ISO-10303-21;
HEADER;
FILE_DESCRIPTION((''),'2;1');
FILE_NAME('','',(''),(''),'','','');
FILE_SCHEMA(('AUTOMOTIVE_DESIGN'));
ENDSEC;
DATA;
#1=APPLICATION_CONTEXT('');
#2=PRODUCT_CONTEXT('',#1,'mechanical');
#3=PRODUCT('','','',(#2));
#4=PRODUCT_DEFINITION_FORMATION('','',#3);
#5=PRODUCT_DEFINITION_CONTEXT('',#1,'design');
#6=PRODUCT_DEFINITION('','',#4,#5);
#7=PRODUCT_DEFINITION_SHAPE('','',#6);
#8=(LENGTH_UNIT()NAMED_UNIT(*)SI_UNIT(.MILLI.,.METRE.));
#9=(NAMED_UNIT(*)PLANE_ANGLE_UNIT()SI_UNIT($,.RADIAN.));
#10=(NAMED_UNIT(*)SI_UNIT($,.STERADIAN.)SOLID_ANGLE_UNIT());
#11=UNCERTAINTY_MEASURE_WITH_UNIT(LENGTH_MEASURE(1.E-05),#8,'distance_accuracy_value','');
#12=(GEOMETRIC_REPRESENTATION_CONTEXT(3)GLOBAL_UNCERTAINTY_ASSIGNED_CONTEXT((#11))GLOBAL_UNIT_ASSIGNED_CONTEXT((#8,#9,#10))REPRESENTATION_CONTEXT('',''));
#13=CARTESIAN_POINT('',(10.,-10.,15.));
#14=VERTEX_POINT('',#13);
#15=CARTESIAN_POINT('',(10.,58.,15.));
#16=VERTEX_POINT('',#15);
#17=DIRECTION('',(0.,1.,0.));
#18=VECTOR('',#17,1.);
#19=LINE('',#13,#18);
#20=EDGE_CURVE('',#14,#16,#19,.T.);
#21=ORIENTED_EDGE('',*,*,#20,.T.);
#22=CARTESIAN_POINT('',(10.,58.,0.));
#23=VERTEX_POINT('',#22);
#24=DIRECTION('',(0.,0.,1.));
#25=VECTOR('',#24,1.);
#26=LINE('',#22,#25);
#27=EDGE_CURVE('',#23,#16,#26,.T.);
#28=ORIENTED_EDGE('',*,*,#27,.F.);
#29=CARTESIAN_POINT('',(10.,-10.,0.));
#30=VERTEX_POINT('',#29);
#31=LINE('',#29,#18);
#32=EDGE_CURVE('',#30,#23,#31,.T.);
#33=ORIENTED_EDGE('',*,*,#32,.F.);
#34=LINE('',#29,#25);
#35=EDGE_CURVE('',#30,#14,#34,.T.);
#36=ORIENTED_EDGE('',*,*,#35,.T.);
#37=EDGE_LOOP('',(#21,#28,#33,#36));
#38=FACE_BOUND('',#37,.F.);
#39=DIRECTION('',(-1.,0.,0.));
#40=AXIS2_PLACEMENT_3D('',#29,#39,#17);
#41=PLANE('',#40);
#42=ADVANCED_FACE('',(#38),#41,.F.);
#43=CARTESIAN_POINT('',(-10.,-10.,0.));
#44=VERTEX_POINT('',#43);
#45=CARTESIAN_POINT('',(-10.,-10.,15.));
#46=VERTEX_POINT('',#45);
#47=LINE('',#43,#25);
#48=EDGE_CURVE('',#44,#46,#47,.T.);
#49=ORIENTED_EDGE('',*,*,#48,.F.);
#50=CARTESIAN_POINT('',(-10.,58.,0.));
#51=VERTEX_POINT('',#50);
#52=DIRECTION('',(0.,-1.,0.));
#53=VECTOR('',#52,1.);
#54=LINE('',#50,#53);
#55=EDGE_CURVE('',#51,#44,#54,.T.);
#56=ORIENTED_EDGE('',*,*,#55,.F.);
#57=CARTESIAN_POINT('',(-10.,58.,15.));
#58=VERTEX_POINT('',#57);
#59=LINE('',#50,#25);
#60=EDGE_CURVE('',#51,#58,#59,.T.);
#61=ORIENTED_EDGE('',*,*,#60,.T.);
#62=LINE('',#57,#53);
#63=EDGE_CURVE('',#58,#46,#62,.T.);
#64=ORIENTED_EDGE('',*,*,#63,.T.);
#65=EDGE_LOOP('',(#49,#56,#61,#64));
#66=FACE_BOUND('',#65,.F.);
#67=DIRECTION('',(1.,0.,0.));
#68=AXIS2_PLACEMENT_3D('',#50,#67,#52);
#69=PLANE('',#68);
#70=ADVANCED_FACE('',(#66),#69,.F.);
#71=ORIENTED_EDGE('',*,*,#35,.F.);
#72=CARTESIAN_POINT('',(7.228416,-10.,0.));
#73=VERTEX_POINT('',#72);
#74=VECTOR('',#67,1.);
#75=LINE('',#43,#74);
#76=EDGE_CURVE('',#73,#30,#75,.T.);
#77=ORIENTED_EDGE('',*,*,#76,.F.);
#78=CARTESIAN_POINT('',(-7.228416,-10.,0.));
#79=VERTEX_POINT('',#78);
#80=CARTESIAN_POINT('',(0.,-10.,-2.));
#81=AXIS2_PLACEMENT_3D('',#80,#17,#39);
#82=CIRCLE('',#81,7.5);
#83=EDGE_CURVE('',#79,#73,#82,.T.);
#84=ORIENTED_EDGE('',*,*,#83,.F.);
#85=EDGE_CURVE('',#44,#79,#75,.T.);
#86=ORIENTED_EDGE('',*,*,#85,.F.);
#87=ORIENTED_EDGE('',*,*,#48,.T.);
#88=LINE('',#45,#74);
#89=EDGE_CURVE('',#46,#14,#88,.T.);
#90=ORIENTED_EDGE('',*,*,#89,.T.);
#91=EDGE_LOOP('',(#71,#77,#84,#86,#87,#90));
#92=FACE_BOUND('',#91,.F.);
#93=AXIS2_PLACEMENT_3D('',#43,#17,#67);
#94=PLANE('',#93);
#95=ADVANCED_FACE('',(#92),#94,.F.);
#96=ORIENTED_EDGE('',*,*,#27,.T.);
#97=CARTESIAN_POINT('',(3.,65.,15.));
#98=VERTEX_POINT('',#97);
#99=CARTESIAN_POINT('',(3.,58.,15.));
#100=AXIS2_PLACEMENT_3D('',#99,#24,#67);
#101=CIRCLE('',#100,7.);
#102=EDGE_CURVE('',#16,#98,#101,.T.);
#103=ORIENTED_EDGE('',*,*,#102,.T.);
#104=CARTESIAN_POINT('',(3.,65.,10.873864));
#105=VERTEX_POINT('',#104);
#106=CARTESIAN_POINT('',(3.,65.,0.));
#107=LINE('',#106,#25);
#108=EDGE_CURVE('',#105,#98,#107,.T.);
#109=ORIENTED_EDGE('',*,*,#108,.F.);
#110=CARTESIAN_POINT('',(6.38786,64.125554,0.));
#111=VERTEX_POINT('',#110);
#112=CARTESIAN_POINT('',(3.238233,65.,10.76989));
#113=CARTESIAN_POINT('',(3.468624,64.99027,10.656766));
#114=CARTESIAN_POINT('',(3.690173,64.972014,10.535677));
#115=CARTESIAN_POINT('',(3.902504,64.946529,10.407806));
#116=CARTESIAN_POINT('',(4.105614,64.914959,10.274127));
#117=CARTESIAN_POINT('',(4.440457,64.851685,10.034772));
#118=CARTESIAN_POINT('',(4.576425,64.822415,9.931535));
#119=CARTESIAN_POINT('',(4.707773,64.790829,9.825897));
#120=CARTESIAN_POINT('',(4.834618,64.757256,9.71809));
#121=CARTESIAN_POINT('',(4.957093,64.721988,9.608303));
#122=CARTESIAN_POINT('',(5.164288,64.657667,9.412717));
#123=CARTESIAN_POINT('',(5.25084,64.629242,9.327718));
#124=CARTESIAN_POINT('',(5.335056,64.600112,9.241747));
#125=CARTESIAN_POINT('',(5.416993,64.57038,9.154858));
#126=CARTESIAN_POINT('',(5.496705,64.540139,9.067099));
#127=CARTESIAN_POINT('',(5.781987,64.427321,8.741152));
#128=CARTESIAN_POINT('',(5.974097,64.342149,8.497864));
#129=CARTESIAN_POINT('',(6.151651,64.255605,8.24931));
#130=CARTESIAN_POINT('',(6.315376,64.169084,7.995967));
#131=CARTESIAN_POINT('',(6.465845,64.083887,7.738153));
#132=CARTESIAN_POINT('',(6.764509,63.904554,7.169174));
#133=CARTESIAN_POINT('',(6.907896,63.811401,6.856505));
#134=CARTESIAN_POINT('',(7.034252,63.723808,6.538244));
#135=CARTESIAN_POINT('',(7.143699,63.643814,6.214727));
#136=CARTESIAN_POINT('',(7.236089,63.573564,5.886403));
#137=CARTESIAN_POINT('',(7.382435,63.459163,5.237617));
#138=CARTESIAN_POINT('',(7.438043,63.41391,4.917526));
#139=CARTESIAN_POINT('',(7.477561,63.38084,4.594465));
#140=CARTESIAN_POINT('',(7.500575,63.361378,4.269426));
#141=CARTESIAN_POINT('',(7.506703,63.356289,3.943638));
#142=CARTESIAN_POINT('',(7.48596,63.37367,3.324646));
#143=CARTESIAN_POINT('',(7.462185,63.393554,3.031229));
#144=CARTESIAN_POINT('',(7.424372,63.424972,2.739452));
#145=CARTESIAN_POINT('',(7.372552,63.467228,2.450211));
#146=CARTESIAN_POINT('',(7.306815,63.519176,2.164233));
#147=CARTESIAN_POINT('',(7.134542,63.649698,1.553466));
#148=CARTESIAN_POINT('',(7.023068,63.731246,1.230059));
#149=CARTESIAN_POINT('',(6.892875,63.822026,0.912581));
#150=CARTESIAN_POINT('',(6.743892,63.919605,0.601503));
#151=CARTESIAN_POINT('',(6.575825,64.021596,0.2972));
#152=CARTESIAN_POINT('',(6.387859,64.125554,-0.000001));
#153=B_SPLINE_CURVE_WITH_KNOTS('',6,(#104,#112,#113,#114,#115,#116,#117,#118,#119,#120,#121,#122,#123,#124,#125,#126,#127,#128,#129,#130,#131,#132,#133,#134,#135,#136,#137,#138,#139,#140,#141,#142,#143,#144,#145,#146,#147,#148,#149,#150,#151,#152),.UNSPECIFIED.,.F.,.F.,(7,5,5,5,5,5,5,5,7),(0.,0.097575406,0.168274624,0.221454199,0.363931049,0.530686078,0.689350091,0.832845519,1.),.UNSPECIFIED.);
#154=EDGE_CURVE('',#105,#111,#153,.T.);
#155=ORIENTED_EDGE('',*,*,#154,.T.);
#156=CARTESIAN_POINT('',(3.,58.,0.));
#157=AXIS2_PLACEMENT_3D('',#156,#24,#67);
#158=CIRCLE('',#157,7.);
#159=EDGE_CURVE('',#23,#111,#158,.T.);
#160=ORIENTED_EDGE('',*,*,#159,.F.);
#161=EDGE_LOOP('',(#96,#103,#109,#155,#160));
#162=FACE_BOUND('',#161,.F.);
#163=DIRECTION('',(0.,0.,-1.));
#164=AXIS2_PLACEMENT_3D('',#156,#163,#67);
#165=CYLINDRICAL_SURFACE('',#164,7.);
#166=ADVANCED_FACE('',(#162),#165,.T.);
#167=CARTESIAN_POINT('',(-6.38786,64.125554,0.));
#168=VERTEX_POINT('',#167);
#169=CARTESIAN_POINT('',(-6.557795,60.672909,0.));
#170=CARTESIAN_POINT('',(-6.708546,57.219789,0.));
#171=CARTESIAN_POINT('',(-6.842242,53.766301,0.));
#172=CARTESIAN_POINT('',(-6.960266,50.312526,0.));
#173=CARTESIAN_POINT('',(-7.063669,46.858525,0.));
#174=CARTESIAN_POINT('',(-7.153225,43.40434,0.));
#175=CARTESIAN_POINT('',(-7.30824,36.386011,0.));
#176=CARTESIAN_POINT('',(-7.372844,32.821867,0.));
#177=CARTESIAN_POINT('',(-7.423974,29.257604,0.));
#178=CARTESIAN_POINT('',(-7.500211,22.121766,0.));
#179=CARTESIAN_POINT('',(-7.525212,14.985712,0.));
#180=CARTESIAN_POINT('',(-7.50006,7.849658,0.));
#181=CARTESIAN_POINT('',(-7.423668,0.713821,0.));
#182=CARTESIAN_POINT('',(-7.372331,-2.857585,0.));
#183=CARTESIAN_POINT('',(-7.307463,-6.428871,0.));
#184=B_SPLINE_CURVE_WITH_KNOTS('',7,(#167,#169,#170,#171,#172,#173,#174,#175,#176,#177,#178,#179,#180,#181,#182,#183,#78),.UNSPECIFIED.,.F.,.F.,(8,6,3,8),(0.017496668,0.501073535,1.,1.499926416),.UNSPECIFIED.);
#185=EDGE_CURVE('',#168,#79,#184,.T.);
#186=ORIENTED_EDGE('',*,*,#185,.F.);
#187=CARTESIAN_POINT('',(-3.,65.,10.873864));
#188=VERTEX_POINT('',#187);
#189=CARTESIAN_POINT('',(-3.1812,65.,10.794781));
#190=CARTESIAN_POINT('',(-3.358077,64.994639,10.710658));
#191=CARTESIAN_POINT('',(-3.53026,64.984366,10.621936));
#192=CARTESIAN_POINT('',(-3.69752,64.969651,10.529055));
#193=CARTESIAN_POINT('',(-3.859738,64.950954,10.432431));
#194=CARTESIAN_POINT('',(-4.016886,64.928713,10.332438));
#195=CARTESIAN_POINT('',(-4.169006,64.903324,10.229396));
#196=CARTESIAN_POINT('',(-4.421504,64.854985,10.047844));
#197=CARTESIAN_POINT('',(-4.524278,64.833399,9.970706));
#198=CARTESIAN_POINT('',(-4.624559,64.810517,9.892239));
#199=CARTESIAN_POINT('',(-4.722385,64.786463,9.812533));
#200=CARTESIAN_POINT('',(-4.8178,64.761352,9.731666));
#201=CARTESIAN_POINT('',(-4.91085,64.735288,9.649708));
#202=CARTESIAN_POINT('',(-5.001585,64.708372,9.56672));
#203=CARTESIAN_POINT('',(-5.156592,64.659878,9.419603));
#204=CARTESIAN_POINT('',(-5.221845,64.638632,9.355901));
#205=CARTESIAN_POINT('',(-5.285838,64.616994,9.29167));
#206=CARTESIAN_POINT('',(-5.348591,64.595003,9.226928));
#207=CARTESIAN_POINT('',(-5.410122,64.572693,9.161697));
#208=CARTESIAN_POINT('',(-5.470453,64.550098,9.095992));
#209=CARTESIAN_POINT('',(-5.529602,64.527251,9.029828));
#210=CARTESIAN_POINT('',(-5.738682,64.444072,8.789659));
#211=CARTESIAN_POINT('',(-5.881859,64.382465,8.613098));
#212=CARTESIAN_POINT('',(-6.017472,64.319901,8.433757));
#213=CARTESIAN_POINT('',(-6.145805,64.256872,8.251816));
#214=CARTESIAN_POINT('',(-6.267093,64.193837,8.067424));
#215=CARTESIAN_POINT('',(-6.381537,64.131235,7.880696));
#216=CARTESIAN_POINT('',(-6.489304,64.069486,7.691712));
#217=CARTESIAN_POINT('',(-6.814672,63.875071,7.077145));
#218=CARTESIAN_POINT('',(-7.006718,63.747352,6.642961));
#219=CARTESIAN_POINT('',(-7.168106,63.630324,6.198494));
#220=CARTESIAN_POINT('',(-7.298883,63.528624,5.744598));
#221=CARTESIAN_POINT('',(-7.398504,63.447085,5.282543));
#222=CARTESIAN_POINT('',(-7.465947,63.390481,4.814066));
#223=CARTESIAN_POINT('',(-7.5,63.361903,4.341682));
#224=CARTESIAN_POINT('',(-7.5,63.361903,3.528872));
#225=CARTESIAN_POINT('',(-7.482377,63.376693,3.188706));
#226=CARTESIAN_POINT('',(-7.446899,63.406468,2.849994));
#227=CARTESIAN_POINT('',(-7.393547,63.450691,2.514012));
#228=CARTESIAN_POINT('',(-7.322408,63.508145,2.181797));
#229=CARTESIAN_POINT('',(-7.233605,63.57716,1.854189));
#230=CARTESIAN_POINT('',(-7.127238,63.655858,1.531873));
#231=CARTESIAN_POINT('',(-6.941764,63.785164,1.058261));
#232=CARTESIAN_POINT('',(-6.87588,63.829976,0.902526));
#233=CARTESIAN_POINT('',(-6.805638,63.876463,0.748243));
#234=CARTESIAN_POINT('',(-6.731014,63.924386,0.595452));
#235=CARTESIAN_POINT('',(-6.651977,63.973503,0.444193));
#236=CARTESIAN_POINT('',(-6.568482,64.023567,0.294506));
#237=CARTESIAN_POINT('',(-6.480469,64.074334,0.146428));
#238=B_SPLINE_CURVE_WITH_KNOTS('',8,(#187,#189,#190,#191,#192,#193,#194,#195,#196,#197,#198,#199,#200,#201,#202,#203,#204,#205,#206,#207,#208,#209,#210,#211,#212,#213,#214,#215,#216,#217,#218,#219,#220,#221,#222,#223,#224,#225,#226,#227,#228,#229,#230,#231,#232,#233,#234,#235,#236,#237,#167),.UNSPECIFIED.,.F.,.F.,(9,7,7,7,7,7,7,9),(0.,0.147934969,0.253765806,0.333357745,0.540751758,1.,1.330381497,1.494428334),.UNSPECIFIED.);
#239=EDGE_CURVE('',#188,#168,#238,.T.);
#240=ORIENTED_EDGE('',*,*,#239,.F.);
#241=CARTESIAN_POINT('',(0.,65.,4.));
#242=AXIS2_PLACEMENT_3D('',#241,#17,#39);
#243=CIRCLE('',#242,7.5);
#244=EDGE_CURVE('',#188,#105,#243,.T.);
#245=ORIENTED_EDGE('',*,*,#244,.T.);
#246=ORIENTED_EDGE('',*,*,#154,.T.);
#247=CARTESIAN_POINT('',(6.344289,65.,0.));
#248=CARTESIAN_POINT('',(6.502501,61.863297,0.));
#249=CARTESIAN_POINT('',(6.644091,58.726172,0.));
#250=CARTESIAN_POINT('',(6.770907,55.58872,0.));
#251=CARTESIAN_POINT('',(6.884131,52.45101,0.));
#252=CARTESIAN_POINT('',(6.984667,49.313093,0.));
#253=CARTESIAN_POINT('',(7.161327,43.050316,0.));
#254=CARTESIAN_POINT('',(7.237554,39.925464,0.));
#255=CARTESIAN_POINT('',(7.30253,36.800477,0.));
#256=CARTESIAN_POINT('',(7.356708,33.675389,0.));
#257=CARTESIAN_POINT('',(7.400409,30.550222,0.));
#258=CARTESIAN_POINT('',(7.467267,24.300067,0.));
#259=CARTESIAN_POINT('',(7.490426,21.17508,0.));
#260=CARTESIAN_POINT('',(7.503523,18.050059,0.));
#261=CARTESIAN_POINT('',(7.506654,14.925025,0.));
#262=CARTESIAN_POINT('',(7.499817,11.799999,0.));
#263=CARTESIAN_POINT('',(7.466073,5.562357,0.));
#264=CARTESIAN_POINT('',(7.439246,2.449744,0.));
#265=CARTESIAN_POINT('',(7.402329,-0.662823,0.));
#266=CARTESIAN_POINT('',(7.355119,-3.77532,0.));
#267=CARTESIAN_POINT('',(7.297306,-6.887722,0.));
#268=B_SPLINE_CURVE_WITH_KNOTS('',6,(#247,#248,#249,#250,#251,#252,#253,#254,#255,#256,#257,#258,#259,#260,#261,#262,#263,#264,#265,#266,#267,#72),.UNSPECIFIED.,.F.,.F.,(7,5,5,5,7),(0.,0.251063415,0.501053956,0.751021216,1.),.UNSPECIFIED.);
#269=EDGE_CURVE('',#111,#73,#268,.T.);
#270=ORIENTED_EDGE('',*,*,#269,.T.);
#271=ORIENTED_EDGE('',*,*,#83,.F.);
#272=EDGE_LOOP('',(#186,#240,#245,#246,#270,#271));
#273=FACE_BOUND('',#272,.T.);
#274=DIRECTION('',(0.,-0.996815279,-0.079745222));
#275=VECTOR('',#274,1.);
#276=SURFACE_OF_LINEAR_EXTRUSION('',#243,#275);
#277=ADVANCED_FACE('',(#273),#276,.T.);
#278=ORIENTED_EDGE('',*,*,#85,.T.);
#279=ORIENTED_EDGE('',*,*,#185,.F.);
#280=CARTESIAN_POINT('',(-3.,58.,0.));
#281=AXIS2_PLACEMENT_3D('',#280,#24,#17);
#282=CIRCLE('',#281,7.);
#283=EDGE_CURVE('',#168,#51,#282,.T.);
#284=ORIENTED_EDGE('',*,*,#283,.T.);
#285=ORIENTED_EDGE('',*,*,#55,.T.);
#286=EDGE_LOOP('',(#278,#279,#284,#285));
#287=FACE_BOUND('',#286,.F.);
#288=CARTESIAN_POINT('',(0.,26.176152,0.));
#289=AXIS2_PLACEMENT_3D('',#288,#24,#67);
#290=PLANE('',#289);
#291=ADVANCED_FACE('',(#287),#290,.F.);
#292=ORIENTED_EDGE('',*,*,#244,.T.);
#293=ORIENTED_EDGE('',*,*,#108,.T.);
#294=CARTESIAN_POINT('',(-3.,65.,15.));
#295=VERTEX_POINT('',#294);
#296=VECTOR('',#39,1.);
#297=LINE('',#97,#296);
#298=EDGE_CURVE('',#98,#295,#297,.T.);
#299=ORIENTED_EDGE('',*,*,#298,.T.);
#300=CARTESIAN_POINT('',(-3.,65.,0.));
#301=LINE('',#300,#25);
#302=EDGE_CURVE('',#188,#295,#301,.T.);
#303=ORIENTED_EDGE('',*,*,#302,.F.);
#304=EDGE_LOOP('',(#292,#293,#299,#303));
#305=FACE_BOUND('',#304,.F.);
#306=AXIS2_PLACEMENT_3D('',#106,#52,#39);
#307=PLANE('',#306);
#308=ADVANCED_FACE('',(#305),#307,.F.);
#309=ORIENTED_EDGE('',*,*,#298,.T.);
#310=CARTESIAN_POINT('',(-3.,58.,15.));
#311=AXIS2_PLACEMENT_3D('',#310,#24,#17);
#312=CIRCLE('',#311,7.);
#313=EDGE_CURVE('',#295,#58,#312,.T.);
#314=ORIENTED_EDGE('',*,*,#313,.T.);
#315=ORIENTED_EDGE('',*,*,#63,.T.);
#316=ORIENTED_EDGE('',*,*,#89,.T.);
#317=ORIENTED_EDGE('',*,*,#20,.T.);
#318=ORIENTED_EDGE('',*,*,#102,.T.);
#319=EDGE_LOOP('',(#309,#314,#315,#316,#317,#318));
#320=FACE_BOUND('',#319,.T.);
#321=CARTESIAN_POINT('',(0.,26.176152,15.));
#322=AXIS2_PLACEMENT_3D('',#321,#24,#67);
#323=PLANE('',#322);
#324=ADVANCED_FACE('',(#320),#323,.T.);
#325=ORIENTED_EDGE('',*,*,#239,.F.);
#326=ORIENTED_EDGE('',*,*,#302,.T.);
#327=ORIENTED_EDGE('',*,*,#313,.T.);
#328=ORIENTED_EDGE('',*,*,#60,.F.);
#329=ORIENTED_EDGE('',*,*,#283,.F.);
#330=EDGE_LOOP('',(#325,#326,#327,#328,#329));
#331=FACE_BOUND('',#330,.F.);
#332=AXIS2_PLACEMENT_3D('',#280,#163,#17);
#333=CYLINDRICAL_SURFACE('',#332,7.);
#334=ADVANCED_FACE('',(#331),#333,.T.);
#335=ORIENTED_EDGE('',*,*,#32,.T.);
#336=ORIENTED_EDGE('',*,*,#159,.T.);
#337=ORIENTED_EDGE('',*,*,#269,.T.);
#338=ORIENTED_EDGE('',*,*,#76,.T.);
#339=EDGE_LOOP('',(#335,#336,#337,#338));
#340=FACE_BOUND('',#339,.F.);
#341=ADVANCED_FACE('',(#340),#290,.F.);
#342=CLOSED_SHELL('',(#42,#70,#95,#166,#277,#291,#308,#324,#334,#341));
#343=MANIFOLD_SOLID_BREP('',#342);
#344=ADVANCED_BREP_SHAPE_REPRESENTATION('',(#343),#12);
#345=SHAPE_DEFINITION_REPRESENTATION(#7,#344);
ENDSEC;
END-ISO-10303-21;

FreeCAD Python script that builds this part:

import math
import FreeCAD as App
import Part
import Sketcher
from FreeCAD import Vector

doc = App.newDocument("Part")
body = doc.addObject("PartDesign::Body", "Body")

# Sketch on XY plane
sketch1 = body.newObject("Sketcher::SketchObject", "Sketch")
sketch1.AttachmentSupport = (doc.getObject("XY_Plane"), [""])
sketch1.MapMode = "FlatFace"
sketch1.addGeometry(Part.LineSegment(Vector(-10, 58, 0), Vector(-10, -10, 0)), False)
sketch1.addGeometry(Part.LineSegment(Vector(-10, -10, 0), Vector(10, -10, 0)), False)
sketch1.addGeometry(Part.LineSegment(Vector(10, -10, 0), Vector(10, 58, 0)), False)
sketch1.addGeometry(Part.ArcOfCircle(Part.Circle(Vector(3, 58, 0), Vector(0, 0, 1), 7), math.radians(0), math.radians(90)), False)
sketch1.addGeometry(Part.LineSegment(Vector(3, 65, 0), Vector(-3, 65, 0)), False)
sketch1.addGeometry(Part.ArcOfCircle(Part.Circle(Vector(-3, 58, 0), Vector(0, 0, 1), 7), math.radians(90), math.radians(180)), False)
sketch1.addConstraint(Sketcher.Constraint("Coincident", 0, 2, 1, 1))
sketch1.addConstraint(Sketcher.Constraint("Coincident", 1, 2, 2, 1))
sketch1.addConstraint(Sketcher.Constraint("Tangent", 2, 2, 3, 1))
sketch1.addConstraint(Sketcher.Constraint("Tangent", 3, 2, 4, 1))
sketch1.addConstraint(Sketcher.Constraint("Tangent", 4, 2, 5, 1))
sketch1.addConstraint(Sketcher.Constraint("Tangent", 5, 2, 0, 1))
sketch1.addConstraint(Sketcher.Constraint("Vertical", 0))
sketch1.addConstraint(Sketcher.Constraint("Horizontal", 1))
sketch1.addConstraint(Sketcher.Constraint("Vertical", 2))
sketch1.addConstraint(Sketcher.Constraint("Horizontal", 4))
sketch1.addConstraint(Sketcher.Constraint("Equal", 3, 5))
sketch1.addConstraint(Sketcher.Constraint("Radius", 3, 7.0))
sketch1.addConstraint(Sketcher.Constraint("DistanceX", 1, 1, 1, 2, 20.0))
sketch1.addConstraint(Sketcher.Constraint("DistanceY", 0, 2, 0, 1, 68.0))
sketch1.addConstraint(Sketcher.Constraint("DistanceX", -1, 1, 3, 3, 3.0))
sketch1.addConstraint(Sketcher.Constraint("DistanceY", -1, 1, 3, 3, 58.0))
pad1 = body.newObject("PartDesign::Pad", "Pad")
pad1.Profile = sketch1
pad1.Length = 15

# Sketch on XZ plane
sketch2 = body.newObject("Sketcher::SketchObject", "Sketch001")
sketch2.AttachmentSupport = (doc.getObject("XZ_Plane"), [""])
sketch2.MapMode = "FlatFace"
sketch2.AttachmentOffset = App.Placement(Vector(0, 0, -65), App.Rotation())
sketch2.addGeometry(Part.Circle(Vector(0, 4, 0), Vector(0, 0, 1), 7.5), False)
sketch2.addConstraint(Sketcher.Constraint("PointOnObject", 0, 3, -2))
sketch2.addConstraint(Sketcher.Constraint("Diameter", 0, 15.0))
sketch2.addConstraint(Sketcher.Constraint("DistanceY", -1, 1, 0, 3, 4.0))

# Sketch on an angled plane
sketch3 = body.newObject("Sketcher::SketchObject", "Sketch002")
sketch3.Placement = App.Placement(Vector(0, 0.015898, -0.198728), App.Rotation(Vector(0, 0.996815279, 0.079745222), Vector(1.000000001, 0, 0), Vector(0, 0.079745222, -0.996815279), "ZXY"))
sketch3.addGeometry(Part.LineSegment(Vector(65.191719, 0, 0), Vector(-10.047898, 0, 0)), False)
sketch3.addConstraint(Sketcher.Constraint("Horizontal", 0))
sketch3.addConstraint(Sketcher.Constraint("PointOnObject", 0, 1, -1))
sketch3.addConstraint(Sketcher.Constraint("DistanceX", 0, 2, -1, 1, 10.047898))
sketch3.addConstraint(Sketcher.Constraint("DistanceX", 0, 2, 0, 1, 75.239617))
doc.recompute()

subtractivepipe = body.newObject("PartDesign::SubtractivePipe", "SubtractivePipe")
subtractivepipe.Profile = sketch2
subtractivepipe.Spine = (sketch3, ["Edge1"])

doc.recompute()
